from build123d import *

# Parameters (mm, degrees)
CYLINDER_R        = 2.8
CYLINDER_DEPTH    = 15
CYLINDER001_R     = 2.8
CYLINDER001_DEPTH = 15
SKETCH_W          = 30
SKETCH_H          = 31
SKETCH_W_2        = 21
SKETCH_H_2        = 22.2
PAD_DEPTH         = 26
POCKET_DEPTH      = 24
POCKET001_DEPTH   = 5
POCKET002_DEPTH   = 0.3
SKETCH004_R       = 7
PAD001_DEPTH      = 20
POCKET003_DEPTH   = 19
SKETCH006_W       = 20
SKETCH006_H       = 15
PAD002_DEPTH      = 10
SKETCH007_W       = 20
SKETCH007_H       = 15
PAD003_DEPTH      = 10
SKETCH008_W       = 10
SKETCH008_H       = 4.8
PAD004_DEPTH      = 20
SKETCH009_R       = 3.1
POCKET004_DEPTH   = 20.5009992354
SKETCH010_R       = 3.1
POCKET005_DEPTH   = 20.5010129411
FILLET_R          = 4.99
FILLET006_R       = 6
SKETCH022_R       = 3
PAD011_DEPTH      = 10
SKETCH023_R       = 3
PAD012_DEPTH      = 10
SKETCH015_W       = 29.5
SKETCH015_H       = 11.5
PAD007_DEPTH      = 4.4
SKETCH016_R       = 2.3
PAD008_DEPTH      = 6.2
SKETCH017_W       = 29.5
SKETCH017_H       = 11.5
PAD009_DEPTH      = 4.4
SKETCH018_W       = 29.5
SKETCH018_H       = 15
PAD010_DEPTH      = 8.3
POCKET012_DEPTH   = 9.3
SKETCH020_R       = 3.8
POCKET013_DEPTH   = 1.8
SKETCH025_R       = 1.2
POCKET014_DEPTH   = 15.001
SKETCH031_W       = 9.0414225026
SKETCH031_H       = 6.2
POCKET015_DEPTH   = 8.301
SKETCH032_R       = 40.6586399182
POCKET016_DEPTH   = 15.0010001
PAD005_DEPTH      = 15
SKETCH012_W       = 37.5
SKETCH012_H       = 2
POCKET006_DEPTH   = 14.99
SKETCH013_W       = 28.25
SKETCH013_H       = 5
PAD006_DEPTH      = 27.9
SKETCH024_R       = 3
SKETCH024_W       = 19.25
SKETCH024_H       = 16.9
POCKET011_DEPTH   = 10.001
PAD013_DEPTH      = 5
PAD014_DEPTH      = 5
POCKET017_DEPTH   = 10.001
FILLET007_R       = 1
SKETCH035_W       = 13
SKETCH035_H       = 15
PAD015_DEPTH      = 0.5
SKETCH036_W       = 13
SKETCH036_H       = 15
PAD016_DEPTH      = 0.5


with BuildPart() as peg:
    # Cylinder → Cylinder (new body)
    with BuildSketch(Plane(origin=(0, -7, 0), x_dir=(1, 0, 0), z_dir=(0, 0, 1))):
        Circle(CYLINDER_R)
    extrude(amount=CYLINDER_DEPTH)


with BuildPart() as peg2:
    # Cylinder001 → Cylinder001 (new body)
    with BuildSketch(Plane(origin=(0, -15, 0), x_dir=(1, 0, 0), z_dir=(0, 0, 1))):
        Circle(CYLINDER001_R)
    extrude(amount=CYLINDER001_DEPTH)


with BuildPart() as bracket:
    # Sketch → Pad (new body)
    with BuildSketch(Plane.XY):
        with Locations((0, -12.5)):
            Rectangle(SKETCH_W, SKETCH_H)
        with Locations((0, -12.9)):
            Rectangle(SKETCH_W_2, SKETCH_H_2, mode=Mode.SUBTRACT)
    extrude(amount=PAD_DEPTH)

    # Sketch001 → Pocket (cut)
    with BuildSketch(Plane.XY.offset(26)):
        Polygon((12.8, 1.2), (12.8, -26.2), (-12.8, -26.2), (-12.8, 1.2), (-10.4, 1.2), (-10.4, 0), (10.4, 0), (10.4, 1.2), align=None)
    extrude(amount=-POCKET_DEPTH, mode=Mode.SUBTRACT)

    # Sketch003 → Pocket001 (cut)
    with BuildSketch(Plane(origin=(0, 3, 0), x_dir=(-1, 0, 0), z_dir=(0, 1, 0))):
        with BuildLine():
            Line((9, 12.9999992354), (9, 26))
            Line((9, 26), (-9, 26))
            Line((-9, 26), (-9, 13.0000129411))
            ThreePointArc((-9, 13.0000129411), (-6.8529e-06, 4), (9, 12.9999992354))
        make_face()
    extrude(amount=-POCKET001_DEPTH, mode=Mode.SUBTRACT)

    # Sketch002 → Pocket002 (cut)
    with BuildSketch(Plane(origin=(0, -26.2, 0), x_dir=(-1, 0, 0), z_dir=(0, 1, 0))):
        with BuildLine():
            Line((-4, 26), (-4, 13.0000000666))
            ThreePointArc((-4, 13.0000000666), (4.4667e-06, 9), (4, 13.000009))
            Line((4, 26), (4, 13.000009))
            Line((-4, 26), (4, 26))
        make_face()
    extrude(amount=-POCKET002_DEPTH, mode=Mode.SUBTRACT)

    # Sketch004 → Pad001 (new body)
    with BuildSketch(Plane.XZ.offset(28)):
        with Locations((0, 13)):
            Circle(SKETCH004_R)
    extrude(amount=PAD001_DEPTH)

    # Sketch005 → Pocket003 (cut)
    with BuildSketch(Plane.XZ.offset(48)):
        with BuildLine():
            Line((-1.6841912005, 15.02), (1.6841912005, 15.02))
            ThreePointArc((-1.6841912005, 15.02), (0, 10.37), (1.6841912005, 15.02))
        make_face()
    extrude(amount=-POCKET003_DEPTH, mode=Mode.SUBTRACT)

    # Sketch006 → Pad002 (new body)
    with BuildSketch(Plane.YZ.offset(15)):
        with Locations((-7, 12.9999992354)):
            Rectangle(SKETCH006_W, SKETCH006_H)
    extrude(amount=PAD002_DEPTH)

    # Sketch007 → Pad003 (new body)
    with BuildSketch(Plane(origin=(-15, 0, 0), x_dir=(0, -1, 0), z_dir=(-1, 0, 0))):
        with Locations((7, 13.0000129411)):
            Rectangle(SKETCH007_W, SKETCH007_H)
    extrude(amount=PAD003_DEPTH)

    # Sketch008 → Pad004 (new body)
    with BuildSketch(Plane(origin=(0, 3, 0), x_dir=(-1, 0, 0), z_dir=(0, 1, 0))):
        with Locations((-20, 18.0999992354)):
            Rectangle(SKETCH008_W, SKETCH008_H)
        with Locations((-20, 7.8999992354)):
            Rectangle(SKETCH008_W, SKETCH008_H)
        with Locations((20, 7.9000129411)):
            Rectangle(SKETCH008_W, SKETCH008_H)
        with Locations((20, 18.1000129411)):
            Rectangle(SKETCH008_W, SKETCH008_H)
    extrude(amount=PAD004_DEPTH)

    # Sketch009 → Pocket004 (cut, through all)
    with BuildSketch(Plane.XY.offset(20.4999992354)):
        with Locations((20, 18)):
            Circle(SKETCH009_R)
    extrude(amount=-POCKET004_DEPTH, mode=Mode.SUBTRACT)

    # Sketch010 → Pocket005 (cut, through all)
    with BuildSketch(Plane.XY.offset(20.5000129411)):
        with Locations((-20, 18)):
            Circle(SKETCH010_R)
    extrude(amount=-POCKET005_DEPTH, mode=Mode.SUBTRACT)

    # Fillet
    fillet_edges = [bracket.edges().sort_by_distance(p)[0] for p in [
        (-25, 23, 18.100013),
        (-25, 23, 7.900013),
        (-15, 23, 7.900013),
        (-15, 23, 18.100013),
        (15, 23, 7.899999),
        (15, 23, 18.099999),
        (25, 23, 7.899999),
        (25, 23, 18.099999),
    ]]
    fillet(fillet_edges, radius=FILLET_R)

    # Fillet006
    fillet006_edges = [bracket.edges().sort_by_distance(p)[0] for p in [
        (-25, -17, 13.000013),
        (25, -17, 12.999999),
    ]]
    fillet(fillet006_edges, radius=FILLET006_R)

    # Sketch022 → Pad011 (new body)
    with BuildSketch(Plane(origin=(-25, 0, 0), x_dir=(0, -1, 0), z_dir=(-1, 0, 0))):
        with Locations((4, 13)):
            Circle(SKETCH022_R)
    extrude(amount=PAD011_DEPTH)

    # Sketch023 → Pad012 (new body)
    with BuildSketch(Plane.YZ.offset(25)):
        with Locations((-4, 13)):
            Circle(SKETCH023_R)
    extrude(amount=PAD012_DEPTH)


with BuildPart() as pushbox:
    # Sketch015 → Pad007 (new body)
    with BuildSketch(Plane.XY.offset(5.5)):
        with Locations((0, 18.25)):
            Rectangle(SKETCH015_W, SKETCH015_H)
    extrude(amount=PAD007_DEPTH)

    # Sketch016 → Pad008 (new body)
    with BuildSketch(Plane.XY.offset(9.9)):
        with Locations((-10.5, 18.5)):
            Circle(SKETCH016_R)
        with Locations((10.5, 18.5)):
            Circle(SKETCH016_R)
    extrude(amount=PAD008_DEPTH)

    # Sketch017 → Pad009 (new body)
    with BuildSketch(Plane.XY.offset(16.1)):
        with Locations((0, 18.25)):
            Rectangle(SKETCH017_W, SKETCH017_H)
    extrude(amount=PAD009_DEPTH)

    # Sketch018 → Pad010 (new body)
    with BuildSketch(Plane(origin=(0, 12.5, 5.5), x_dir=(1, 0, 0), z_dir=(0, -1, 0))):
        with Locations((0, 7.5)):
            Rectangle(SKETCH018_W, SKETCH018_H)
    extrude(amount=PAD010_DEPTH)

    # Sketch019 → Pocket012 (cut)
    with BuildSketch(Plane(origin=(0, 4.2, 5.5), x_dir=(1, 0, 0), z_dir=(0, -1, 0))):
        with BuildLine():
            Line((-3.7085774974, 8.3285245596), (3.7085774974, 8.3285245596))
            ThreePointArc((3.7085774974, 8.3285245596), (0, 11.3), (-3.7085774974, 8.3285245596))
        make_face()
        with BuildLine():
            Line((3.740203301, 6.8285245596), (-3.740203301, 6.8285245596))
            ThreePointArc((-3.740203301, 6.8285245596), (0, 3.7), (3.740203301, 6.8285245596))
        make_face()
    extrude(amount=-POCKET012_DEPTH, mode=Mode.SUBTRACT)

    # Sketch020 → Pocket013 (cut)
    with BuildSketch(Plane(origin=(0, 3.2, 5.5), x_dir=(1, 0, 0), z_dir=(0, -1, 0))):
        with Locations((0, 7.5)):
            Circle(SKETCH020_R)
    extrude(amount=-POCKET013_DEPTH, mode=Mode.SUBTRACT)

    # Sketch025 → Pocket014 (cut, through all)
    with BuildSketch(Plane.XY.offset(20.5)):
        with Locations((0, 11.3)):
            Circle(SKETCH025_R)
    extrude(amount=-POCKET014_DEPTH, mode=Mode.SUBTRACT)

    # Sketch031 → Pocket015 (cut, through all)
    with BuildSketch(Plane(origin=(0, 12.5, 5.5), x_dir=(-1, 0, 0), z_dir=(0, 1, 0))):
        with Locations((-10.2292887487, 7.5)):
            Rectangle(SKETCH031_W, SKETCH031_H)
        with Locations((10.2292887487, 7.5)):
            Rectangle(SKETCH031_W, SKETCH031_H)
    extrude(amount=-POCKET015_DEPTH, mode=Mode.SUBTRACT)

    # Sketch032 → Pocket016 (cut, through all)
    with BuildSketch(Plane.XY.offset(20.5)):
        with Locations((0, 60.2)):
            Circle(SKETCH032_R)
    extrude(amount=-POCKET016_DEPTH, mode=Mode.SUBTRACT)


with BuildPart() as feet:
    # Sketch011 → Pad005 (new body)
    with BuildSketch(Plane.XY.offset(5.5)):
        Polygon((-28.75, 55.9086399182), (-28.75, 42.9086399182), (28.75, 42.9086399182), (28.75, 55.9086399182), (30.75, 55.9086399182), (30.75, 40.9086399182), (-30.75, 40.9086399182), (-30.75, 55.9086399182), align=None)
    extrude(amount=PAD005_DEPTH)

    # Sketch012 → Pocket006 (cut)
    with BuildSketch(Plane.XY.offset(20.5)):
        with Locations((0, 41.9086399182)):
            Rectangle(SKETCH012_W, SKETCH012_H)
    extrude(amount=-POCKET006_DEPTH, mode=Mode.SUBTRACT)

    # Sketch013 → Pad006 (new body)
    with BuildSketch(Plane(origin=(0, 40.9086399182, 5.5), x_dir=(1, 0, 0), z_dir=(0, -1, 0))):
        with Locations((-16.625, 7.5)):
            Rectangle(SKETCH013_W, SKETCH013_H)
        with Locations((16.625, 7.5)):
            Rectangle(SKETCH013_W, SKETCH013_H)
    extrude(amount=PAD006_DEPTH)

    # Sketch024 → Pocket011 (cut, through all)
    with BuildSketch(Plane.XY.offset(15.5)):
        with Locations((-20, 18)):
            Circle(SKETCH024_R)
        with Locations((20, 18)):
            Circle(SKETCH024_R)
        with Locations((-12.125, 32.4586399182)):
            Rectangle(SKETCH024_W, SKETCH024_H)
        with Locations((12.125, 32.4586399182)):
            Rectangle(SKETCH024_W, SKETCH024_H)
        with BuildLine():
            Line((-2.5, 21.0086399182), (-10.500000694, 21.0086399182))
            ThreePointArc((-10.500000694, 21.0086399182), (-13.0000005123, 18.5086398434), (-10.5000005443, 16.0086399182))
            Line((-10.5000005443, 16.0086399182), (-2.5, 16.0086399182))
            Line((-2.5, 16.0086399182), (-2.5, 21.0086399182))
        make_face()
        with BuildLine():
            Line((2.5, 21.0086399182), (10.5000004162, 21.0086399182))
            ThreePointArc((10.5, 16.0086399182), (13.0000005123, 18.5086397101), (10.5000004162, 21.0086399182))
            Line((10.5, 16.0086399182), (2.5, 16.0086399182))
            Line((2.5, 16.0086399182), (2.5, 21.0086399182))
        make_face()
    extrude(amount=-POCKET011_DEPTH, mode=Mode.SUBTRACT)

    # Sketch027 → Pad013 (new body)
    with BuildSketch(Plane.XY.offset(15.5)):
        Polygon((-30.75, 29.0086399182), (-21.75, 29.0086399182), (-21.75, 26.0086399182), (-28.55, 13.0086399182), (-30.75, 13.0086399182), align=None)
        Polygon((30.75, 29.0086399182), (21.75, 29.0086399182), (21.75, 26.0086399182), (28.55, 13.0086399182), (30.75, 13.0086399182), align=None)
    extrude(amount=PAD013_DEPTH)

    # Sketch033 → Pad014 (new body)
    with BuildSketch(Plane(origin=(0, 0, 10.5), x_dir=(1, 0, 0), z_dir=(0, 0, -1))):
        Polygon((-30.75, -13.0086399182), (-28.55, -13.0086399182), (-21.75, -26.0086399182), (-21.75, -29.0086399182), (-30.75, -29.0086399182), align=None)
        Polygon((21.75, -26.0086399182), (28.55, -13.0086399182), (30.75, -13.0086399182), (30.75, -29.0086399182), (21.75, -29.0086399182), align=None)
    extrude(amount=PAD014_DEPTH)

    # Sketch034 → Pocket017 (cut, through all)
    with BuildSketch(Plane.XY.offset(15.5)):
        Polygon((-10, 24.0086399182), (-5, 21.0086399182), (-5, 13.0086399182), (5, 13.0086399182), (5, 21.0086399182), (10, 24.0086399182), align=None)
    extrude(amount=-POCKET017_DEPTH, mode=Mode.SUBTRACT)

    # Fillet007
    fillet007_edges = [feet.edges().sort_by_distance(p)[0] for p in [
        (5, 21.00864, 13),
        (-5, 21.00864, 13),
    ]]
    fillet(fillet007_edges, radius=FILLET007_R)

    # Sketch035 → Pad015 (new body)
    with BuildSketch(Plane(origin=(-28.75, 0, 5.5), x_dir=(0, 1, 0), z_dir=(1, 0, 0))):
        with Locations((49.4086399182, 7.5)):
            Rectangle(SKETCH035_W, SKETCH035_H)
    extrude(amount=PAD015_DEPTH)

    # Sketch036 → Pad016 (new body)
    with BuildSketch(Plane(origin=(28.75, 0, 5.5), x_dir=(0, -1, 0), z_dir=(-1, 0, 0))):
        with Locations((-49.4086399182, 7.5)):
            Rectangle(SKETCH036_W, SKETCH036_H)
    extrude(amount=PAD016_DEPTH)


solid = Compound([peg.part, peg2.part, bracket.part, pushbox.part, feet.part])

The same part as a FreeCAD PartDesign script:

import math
import FreeCAD as App
import Part
import Sketcher

V = App.Vector
Q = App.Units.Quantity


def edges_at(feature, points):
    """Names of the edges that pass closest to the given points."""
    edges = feature.Shape.Edges
    near = lambda p: min(range(len(edges)), key=lambda i: edges[i].distToShape(Part.Vertex(*p))[0])
    return sorted({f"Edge{near(p) + 1}" for p in points})


def add_polygon(sketch, points):
    """Adds a closed chain of lines whose ends are joined by coincident constraints."""
    first, n = sketch.GeometryCount, len(points)
    for a, b in zip(points, points[1:] + points[:1]):
        sketch.addGeometry(Part.LineSegment(App.Vector(*a, 0), App.Vector(*b, 0)), False)
    for i in range(n):
        sketch.addConstraint(Sketcher.Constraint("Coincident", first + i, 2, first + (i + 1) % n, 1))

doc = App.newDocument("Part")
body = doc.addObject("PartDesign::Body", "Body")

sketch1 = body.newObject("Sketcher::SketchObject", "Sketch")
sketch1.AttachmentSupport = (doc.getObject("XY_Plane"), [""])
sketch1.MapMode = "FlatFace"
sketch1.addGeometry(Part.Circle(V(0, -7, 0), V(0, 0, 1), 2.8), False)
sketch1.addConstraint(Sketcher.Constraint("PointOnObject", 0, 3, -2))
sketch1.addConstraint(Sketcher.Constraint("Diameter", 0, Q("5.6 mm")))
sketch1.addConstraint(Sketcher.Constraint("DistanceY", 0, 3, -1, 1, Q("7 mm")))
pad1 = body.newObject("PartDesign::Pad", "Pad")
pad1.Profile = sketch1
pad1.Length = 15
body2 = doc.addObject("PartDesign::Body", "Body001")

sketch2 = body2.newObject("Sketcher::SketchObject", "Sketch001")
sketch2.AttachmentSupport = (doc.getObject("XY_Plane001"), [""])
sketch2.MapMode = "FlatFace"
sketch2.addGeometry(Part.Circle(V(0, -15, 0), V(0, 0, 1), 2.8), False)
sketch2.addConstraint(Sketcher.Constraint("PointOnObject", 0, 3, -2))
sketch2.addConstraint(Sketcher.Constraint("Diameter", 0, Q("5.6 mm")))
sketch2.addConstraint(Sketcher.Constraint("DistanceY", 0, 3, -1, 1, Q("15 mm")))
pad2 = body2.newObject("PartDesign::Pad", "Pad001")
pad2.Profile = sketch2
pad2.Length = 15
body3 = doc.addObject("PartDesign::Body", "Body002")

sketch3 = body3.newObject("Sketcher::SketchObject", "Sketch002")
sketch3.AttachmentSupport = (doc.getObject("XY_Plane002"), [""])
sketch3.MapMode = "FlatFace"
add_polygon(sketch3, [(-15, 3), (-15, -28), (15, -28), (15, 3)])
add_polygon(sketch3, [(10, -24), (-10, -24), (-10, -2), (10, -2)])
sketch3.addConstraint(Sketcher.Constraint("Vertical", 0))
sketch3.addConstraint(Sketcher.Constraint("Horizontal", 1))
sketch3.addConstraint(Sketcher.Constraint("Vertical", 2))
sketch3.addConstraint(Sketcher.Constraint("Horizontal", 3))
sketch3.addConstraint(Sketcher.Constraint("Horizontal", 4))
sketch3.addConstraint(Sketcher.Constraint("Vertical", 5))
sketch3.addConstraint(Sketcher.Constraint("Horizontal", 6))
sketch3.addConstraint(Sketcher.Constraint("Vertical", 7))
sketch3.addConstraint(Sketcher.Constraint("DistanceX", 1, 1, 1, 2, Q("30 mm")))
sketch3.addConstraint(Sketcher.Constraint("DistanceX", 4, 2, 4, 1, Q("21 mm")))
sketch3.addConstraint(Sketcher.Constraint("DistanceY", 0, 2, 0, 1, Q("31 mm")))
sketch3.addConstraint(Sketcher.Constraint("DistanceY", 5, 1, 5, 2, Q("22.2 mm")))
sketch3.addConstraint(Sketcher.Constraint("DistanceX", 0, 2, -1, 1, Q("15 mm")))
sketch3.addConstraint(Sketcher.Constraint("DistanceY", 0, 2, -1, 1, Q("28 mm")))
sketch3.addConstraint(Sketcher.Constraint("DistanceY", 4, 2, -1, 1, Q("24 mm")))
sketch3.addConstraint(Sketcher.Constraint("DistanceX", 4, 2, -1, 1, Q("10.5 mm")))
pad3 = body3.newObject("PartDesign::Pad", "Pad002")
pad3.Profile = sketch3
pad3.Length = 26

sketch4 = body3.newObject("Sketcher::SketchObject", "Sketch003")
sketch4.AttachmentSupport = (doc.getObject("XY_Plane002"), [""])
sketch4.MapMode = "FlatFace"
sketch4.AttachmentOffset = App.Placement(V(0, 0, 26), App.Rotation())
add_polygon(sketch4, [(12.8, -26.2), (12.8, 1.2), (10.4, 1.2), (10.4, 0), (-10.4, 0), (-10.4, 1.2), (-12.8, 1.2), (-12.8, -26.2)])
sketch4.addConstraint(Sketcher.Constraint("Vertical", 0))
sketch4.addConstraint(Sketcher.Constraint("Horizontal", 1))
sketch4.addConstraint(Sketcher.Constraint("Vertical", 2))
sketch4.addConstraint(Sketcher.Constraint("Horizontal", 3))
sketch4.addConstraint(Sketcher.Constraint("Vertical", 4))
sketch4.addConstraint(Sketcher.Constraint("Horizontal", 5))
sketch4.addConstraint(Sketcher.Constraint("Vertical", 6))
sketch4.addConstraint(Sketcher.Constraint("Horizontal", 7))
sketch4.addConstraint(Sketcher.Constraint("Symmetric", 2, 2, 3, 2, -1, 1))
sketch4.addConstraint(Sketcher.Constraint("Symmetric", 0, 2, 5, 2, -2))
sketch4.addConstraint(Sketcher.Constraint("DistanceX", 1, 2, 1, 1, Q("2.4 mm")))
sketch4.addConstraint(Sketcher.Constraint("DistanceX", 3, 2, 3, 1, Q("20.8 mm")))
sketch4.addConstraint(Sketcher.Constraint("DistanceY", 0, 1, 0, 2, Q("27.4 mm")))
sketch4.addConstraint(Sketcher.Constraint("DistanceY", 2, 2, 2, 1, Q("1.2 mm")))
pocket1 = body3.newObject("PartDesign::Pocket", "Pocket")
pocket1.Profile = sketch4
pocket1.Length = 24

sketch5 = body3.newObject("Sketcher::SketchObject", "Sketch004")
sketch5.AttachmentSupport = (doc.getObject("XZ_Plane002"), [""])
sketch5.MapMode = "FlatFace"
sketch5.AttachmentOffset = App.Placement(V(0, 0, -3), App.Rotation())
sketch5.addGeometry(Part.LineSegment(V(-9, 13, 0), V(-9, 26, 0)), False)
sketch5.addGeometry(Part.LineSegment(V(-9, 26, 0), V(9, 26, 0)), False)
sketch5.addGeometry(Part.LineSegment(V(9, 26, 0), V(9, 13, 0)), False)
sketch5.addGeometry(Part.ArcOfCircle(Part.Circle(V(0, 13, 0), V(0, 0, 1), 9), math.radians(-180), math.radians(0)), False)
sketch5.addConstraint(Sketcher.Constraint("Coincident", 0, 2, 1, 1))
sketch5.addConstraint(Sketcher.Constraint("Coincident", 1, 2, 2, 1))
sketch5.addConstraint(Sketcher.Constraint("Tangent", 2, 2, 3, 2))
sketch5.addConstraint(Sketcher.Constraint("Tangent", 3, 1, 0, 1))
sketch5.addConstraint(Sketcher.Constraint("Vertical", 0))
sketch5.addConstraint(Sketcher.Constraint("Horizontal", 1))
sketch5.addConstraint(Sketcher.Constraint("Vertical", 2))
sketch5.addConstraint(Sketcher.Constraint("PointOnObject", 3, 3, -2))
sketch5.addConstraint(Sketcher.Constraint("Radius", 3, Q("9 mm")))
sketch5.addConstraint(Sketcher.Constraint("DistanceY", 0, 1, 0, 2, Q("13.000001 mm")))
sketch5.addConstraint(Sketcher.Constraint("DistanceY", -1, 1, 3, 3, Q("13 mm")))
pocket2 = body3.newObject("PartDesign::Pocket", "Pocket001")
pocket2.Profile = sketch5
pocket2.Length = 5
pocket2.Reversed = True

sketch6 = body3.newObject("Sketcher::SketchObject", "Sketch005")
sketch6.AttachmentSupport = (doc.getObject("XZ_Plane002"), [""])
sketch6.MapMode = "FlatFace"
sketch6.AttachmentOffset = App.Placement(V(0, 0, 26.2), App.Rotation())
sketch6.addGeometry(Part.LineSegment(V(4, 26, 0), V(4, 13, 0)), False)
sketch6.addGeometry(Part.ArcOfCircle(Part.Circle(V(0, 13, 0), V(0, 0, 1), 4), math.radians(180), math.radians(360)), False)
sketch6.addGeometry(Part.LineSegment(V(-4, 13, 0), V(-4, 26, 0)), False)
sketch6.addGeometry(Part.LineSegment(V(-4, 26, 0), V(4, 26, 0)), False)
sketch6.addConstraint(Sketcher.Constraint("Tangent", 0, 2, 1, 2))
sketch6.addConstraint(Sketcher.Constraint("Coincident", 1, 1, 2, 1))
sketch6.addConstraint(Sketcher.Constraint("Coincident", 2, 2, 3, 1))
sketch6.addConstraint(Sketcher.Constraint("Coincident", 3, 2, 0, 1))
sketch6.addConstraint(Sketcher.Constraint("Vertical", 0))
sketch6.addConstraint(Sketcher.Constraint("Vertical", 2))
sketch6.addConstraint(Sketcher.Constraint("Horizontal", 3))
sketch6.addConstraint(Sketcher.Constraint("Symmetric", 0, 2, 1, 1, -2))
sketch6.addConstraint(Sketcher.Constraint("Radius", 1, Q("4 mm")))
sketch6.addConstraint(Sketcher.Constraint("DistanceY", 0, 2, 0, 1, Q("13 mm")))
sketch6.addConstraint(Sketcher.Constraint("DistanceY", -1, 1, 1, 3, Q("13 mm")))
pocket3 = body3.newObject("PartDesign::Pocket", "Pocket002")
pocket3.Profile = sketch6
pocket3.Length = 0.3
pocket3.Reversed = True

sketch7 = body3.newObject("Sketcher::SketchObject", "Sketch006")
sketch7.AttachmentSupport = (doc.getObject("XZ_Plane002"), [""])
sketch7.MapMode = "FlatFace"
sketch7.AttachmentOffset = App.Placement(V(0, 0, 28), App.Rotation())
sketch7.addGeometry(Part.Circle(V(0, 13, 0), V(0, 0, 1), 7), False)
sketch7.addConstraint(Sketcher.Constraint("PointOnObject", 0, 3, -2))
sketch7.addConstraint(Sketcher.Constraint("Diameter", 0, Q("14 mm")))
sketch7.addConstraint(Sketcher.Constraint("DistanceY", -1, 1, 0, 3, Q("13 mm")))
pad4 = body3.newObject("PartDesign::Pad", "Pad003")
pad4.Profile = sketch7
pad4.Length = 20

sketch8 = body3.newObject("Sketcher::SketchObject", "Sketch007")
sketch8.AttachmentSupport = (doc.getObject("XZ_Plane002"), [""])
sketch8.MapMode = "FlatFace"
sketch8.AttachmentOffset = App.Placement(V(0, 0, 48), App.Rotation())
sketch8.addGeometry(Part.LineSegment(V(1.7, 15, 0), V(-1.7, 15, 0)), False)
sketch8.addGeometry(Part.ArcOfCircle(Part.Circle(V(0, 13, 0), V(0, 0, 1), 2.6), math.radians(130), math.radians(410)), False)
sketch8.addConstraint(Sketcher.Constraint("Coincident", 0, 1, 1, 2))
sketch8.addConstraint(Sketcher.Constraint("Coincident", 1, 1, 0, 2))
sketch8.addConstraint(Sketcher.Constraint("Horizontal", 0))
sketch8.addConstraint(Sketcher.Constraint("PointOnObject", 1, 3, -2))
sketch8.addConstraint(Sketcher.Constraint("Radius", 1, Q("2.63 mm")))
sketch8.addConstraint(Sketcher.Constraint("DistanceY", -1, 1, 1, 3, Q("13 mm")))
sketch8.addConstraint(Sketcher.Constraint("DistanceY", -1, 1, 0, 1, Q("15.02 mm")))
pocket4 = body3.newObject("PartDesign::Pocket", "Pocket003")
pocket4.Profile = sketch8
pocket4.Length = 19

sketch9 = body3.newObject("Sketcher::SketchObject", "Sketch008")
sketch9.AttachmentSupport = (doc.getObject("YZ_Plane002"), [""])
sketch9.MapMode = "FlatFace"
sketch9.AttachmentOffset = App.Placement(V(0, 0, 15), App.Rotation())
add_polygon(sketch9, [(-17, 20), (-17, 5), (3, 5), (3, 20)])
sketch9.addConstraint(Sketcher.Constraint("Vertical", 0))
sketch9.addConstraint(Sketcher.Constraint("Horizontal", 1))
sketch9.addConstraint(Sketcher.Constraint("Vertical", 2))
sketch9.addConstraint(Sketcher.Constraint("Horizontal", 3))
sketch9.addConstraint(Sketcher.Constraint("DistanceX", 1, 1, 1, 2, Q("20 mm")))
sketch9.addConstraint(Sketcher.Constraint("DistanceY", 0, 2, 0, 1, Q("15 mm")))
sketch9.addConstraint(Sketcher.Constraint("DistanceX", 0, 2, -1, 1, Q("17 mm")))
sketch9.addConstraint(Sketcher.Constraint("DistanceY", -1, 1, 0, 2, Q("5.499999 mm")))
pad5 = body3.newObject("PartDesign::Pad", "Pad004")
pad5.Profile = sketch9
pad5.Length = 10

sketch10 = body3.newObject("Sketcher::SketchObject", "Sketch009")
sketch10.AttachmentSupport = (doc.getObject("YZ_Plane002"), [""])
sketch10.MapMode = "FlatFace"
sketch10.AttachmentOffset = App.Placement(V(0, 0, -15), App.Rotation())
add_polygon(sketch10, [(3, 21), (3, 6), (-17, 6), (-17, 21)])
sketch10.addConstraint(Sketcher.Constraint("Vertical", 0))
sketch10.addConstraint(Sketcher.Constraint("Horizontal", 1))
sketch10.addConstraint(Sketcher.Constraint("Vertical", 2))
sketch10.addConstraint(Sketcher.Constraint("Horizontal", 3))
sketch10.addConstraint(Sketcher.Constraint("DistanceX", 1, 2, 1, 1, Q("20 mm")))
sketch10.addConstraint(Sketcher.Constraint("DistanceY", 0, 2, 0, 1, Q("15 mm")))
sketch10.addConstraint(Sketcher.Constraint("DistanceX", -1, 1, 0, 2, Q("3 mm")))
sketch10.addConstraint(Sketcher.Constraint("DistanceY", -1, 1, 0, 2, Q("5.500013 mm")))
pad6 = body3.newObject("PartDesign::Pad", "Pad005")
pad6.Profile = sketch10
pad6.Length = 10
pad6.Reversed = True

sketch11 = body3.newObject("Sketcher::SketchObject", "Sketch010")
sketch11.AttachmentSupport = (doc.getObject("XZ_Plane002"), [""])
sketch11.MapMode = "FlatFace"
sketch11.AttachmentOffset = App.Placement(V(0, 0, -3), App.Rotation())
add_polygon(sketch11, [(25, 20.5), (25, 15.7), (15, 15.7), (15, 20.5)])
add_polygon(sketch11, [(25, 10.3), (25, 5.5), (15, 5.5), (15, 10.3)])
add_polygon(sketch11, [(-15, 10.3), (-15, 5.5), (-25, 5.5), (-25, 10.3)])
add_polygon(sketch11, [(-15, 20.5), (-15, 15.7), (-25, 15.7), (-25, 20.5)])
sketch11.addConstraint(Sketcher.Constraint("Vertical", 0))
sketch11.addConstraint(Sketcher.Constraint("Horizontal", 1))
sketch11.addConstraint(Sketcher.Constraint("Vertical", 2))
sketch11.addConstraint(Sketcher.Constraint("Horizontal", 3))
sketch11.addConstraint(Sketcher.Constraint("Vertical", 4))
sketch11.addConstraint(Sketcher.Constraint("Horizontal", 5))
sketch11.addConstraint(Sketcher.Constraint("Vertical", 6))
sketch11.addConstraint(Sketcher.Constraint("Horizontal", 7))
sketch11.addConstraint(Sketcher.Constraint("Vertical", 8))
sketch11.addConstraint(Sketcher.Constraint("Horizontal", 9))
sketch11.addConstraint(Sketcher.Constraint("Vertical", 10))
sketch11.addConstraint(Sketcher.Constraint("Horizontal", 11))
sketch11.addConstraint(Sketcher.Constraint("Vertical", 12))
sketch11.addConstraint(Sketcher.Constraint("Horizontal", 13))
sketch11.addConstraint(Sketcher.Constraint("Vertical", 14))
sketch11.addConstraint(Sketcher.Constraint("Horizontal", 15))
sketch11.addConstraint(Sketcher.Constraint("Vertical", 3, 2, 4, 2))
sketch11.addConstraint(Sketcher.Constraint("Vertical", 2, 2, 5, 2))
sketch11.addConstraint(Sketcher.Constraint("Vertical", 11, 2, 12, 2))
sketch11.addConstraint(Sketcher.Constraint("Vertical", 10, 2, 13, 2))
sketch11.addConstraint(Sketcher.Constraint("Equal", 7, 9))
sketch11.addConstraint(Sketcher.Constraint("Equal", 2, 4))
sketch11.addConstraint(Sketcher.Constraint("Equal", 6, 8))
sketch11.addConstraint(Sketcher.Constraint("Equal", 10, 12))
sketch11.addConstraint(Sketcher.Constraint("DistanceX", 1, 2, 1, 1, Q("10 mm")))
sketch11.addConstraint(Sketcher.Constraint("DistanceY", 0, 2, 0, 1, Q("4.8 mm")))
sketch11.addConstraint(Sketcher.Constraint("DistanceX", -1, 1, 0, 2, Q("25 mm")))
sketch11.addConstraint(Sketcher.Constraint("DistanceX", 8, 2, -1, 1, Q("15 mm")))
sketch11.addConstraint(Sketcher.Constraint("DistanceY", 4, 2, 3, 2, Q("15 mm")))
sketch11.addConstraint(Sketcher.Constraint("DistanceY", 9, 2, 14, 2, Q("15 mm")))
sketch11.addConstraint(Sketcher.Constraint("DistanceY", -1, 1, 0, 2, Q("15.699999 mm")))
sketch11.addConstraint(Sketcher.Constraint("DistanceY", -1, 1, 8, 2, Q("5.500013 mm")))
pad7 = body3.newObject("PartDesign::Pad", "Pad006")
pad7.Profile = sketch11
pad7.Length = 20
pad7.Reversed = True

sketch12 = body3.newObject("Sketcher::SketchObject", "Sketch011")
sketch12.AttachmentSupport = (doc.getObject("XY_Plane002"), [""])
sketch12.MapMode = "FlatFace"
sketch12.AttachmentOffset = App.Placement(V(0, 0, 20.499999), App.Rotation())
sketch12.addGeometry(Part.Circle(V(20, 18, 0), V(0, 0, 1), 3.1), False)
sketch12.addConstraint(Sketcher.Constraint("Diameter", 0, Q("6.2 mm")))
sketch12.addConstraint(Sketcher.Constraint("DistanceX", -1, 1, 0, 3, Q("20 mm")))
sketch12.addConstraint(Sketcher.Constraint("DistanceY", -1, 1, 0, 3, Q("18 mm")))
pocket5 = body3.newObject("PartDesign::Pocket", "Pocket004")
pocket5.Profile = sketch12
pocket5.Type = "ThroughAll"

sketch13 = body3.newObject("Sketcher::SketchObject", "Sketch012")
sketch13.AttachmentSupport = (doc.getObject("XY_Plane002"), [""])
sketch13.MapMode = "FlatFace"
sketch13.AttachmentOffset = App.Placement(V(0, 0, 20.500013), App.Rotation())
sketch13.addGeometry(Part.Circle(V(-20, 18, 0), V(0, 0, 1), 3.1), False)
sketch13.addConstraint(Sketcher.Constraint("Diameter", 0, Q("6.2 mm")))
sketch13.addConstraint(Sketcher.Constraint("DistanceX", 0, 3, -1, 1, Q("20 mm")))
sketch13.addConstraint(Sketcher.Constraint("DistanceY", -1, 1, 0, 3, Q("18 mm")))
pocket6 = body3.newObject("PartDesign::Pocket", "Pocket005")
pocket6.Profile = sketch13
pocket6.Type = "ThroughAll"
doc.recompute()

fillet = body3.newObject("PartDesign::Fillet", "Fillet")
fillet.Base = (pocket6, edges_at(pocket6, [
    (-25, 23, 18.1),
    (-25, 23, 7.9),
    (-15, 23, 7.9),
    (-15, 23, 18.1),
    (15, 23, 7.9),
    (15, 23, 18.1),
    (25, 23, 7.9),
    (25, 23, 18.1),
]))
fillet.Radius = 4.99
doc.recompute()

fillet2 = body3.newObject("PartDesign::Fillet", "Fillet001")
fillet2.Base = (fillet, edges_at(fillet, [(-25, -17, 13), (25, -17, 13)]))
fillet2.Radius = 6

sketch14 = body3.newObject("Sketcher::SketchObject", "Sketch013")
sketch14.AttachmentSupport = (doc.getObject("YZ_Plane002"), [""])
sketch14.MapMode = "FlatFace"
sketch14.AttachmentOffset = App.Placement(V(0, 0, -25), App.Rotation())
sketch14.addGeometry(Part.Circle(V(-4, 13, 0), V(0, 0, 1), 3), False)
sketch14.addConstraint(Sketcher.Constraint("Diameter", 0, Q("6 mm")))
sketch14.addConstraint(Sketcher.Constraint("DistanceX", 0, 3, -1, 1, Q("4 mm")))
sketch14.addConstraint(Sketcher.Constraint("DistanceY", -1, 1, 0, 3, Q("13 mm")))
pad8 = body3.newObject("PartDesign::Pad", "Pad007")
pad8.Profile = sketch14
pad8.Length = 10
pad8.Reversed = True

sketch15 = body3.newObject("Sketcher::SketchObject", "Sketch014")
sketch15.AttachmentSupport = (doc.getObject("YZ_Plane002"), [""])
sketch15.MapMode = "FlatFace"
sketch15.AttachmentOffset = App.Placement(V(0, 0, 25), App.Rotation())
sketch15.addGeometry(Part.Circle(V(-4, 13, 0), V(0, 0, 1), 3), False)
sketch15.addConstraint(Sketcher.Constraint("Diameter", 0, Q("6 mm")))
sketch15.addConstraint(Sketcher.Constraint("DistanceX", 0, 3, -1, 1, Q("4 mm")))
sketch15.addConstraint(Sketcher.Constraint("DistanceY", -1, 1, 0, 3, Q("13 mm")))
pad9 = body3.newObject("PartDesign::Pad", "Pad008")
pad9.Profile = sketch15
pad9.Length = 10
body4 = doc.addObject("PartDesign::Body", "Body003")

sketch16 = body4.newObject("Sketcher::SketchObject", "Sketch015")
sketch16.AttachmentSupport = (doc.getObject("XY_Plane003"), [""])
sketch16.MapMode = "FlatFace"
sketch16.AttachmentOffset = App.Placement(V(0, 0, 5.5), App.Rotation())
add_polygon(sketch16, [(-15, 24), (-15, 12), (15, 12), (15, 24)])
sketch16.addConstraint(Sketcher.Constraint("Vertical", 0))
sketch16.addConstraint(Sketcher.Constraint("Horizontal", 1))
sketch16.addConstraint(Sketcher.Constraint("Vertical", 2))
sketch16.addConstraint(Sketcher.Constraint("Horizontal", 3))
sketch16.addConstraint(Sketcher.Constraint("DistanceX", 1, 1, 1, 2, Q("29.5 mm")))
sketch16.addConstraint(Sketcher.Constraint("DistanceY", 0, 2, 0, 1, Q("11.5 mm")))
sketch16.addConstraint(Sketcher.Constraint("DistanceY", -1, 1, 2, 2, Q("24 mm")))
sketch16.addConstraint(Sketcher.Constraint("DistanceX", 0, 2, -1, 1, Q("14.75 mm")))
pad10 = body4.newObject("PartDesign::Pad", "Pad009")
pad10.Profile = sketch16
pad10.Length = 4.4

sketch17 = body4.newObject("Sketcher::SketchObject", "Sketch016")
sketch17.AttachmentSupport = (doc.getObject("XY_Plane003"), [""])
sketch17.MapMode = "FlatFace"
sketch17.AttachmentOffset = App.Placement(V(0, 0, 9.9), App.Rotation())
sketch17.addGeometry(Part.Circle(V(-10.5, 18.5, 0), V(0, 0, 1), 2.3), False)
sketch17.addGeometry(Part.Circle(V(10.5, 18.5, 0), V(0, 0, 1), 2.3), False)
sketch17.addConstraint(Sketcher.Constraint("Equal", 0, 1))
sketch17.addConstraint(Sketcher.Constraint("Symmetric", 0, 3, 1, 3, -2))
sketch17.addConstraint(Sketcher.Constraint("Diameter", 0, Q("4.6 mm")))
sketch17.addConstraint(Sketcher.Constraint("DistanceX", 0, 3, 1, 3, Q("21 mm")))
sketch17.addConstraint(Sketcher.Constraint("DistanceY", -1, 1, 0, 3, Q("18.5 mm")))
pad11 = body4.newObject("PartDesign::Pad", "Pad010")
pad11.Profile = sketch17
pad11.Length = 6.2

sketch18 = body4.newObject("Sketcher::SketchObject", "Sketch017")
sketch18.AttachmentSupport = (doc.getObject("XY_Plane003"), [""])
sketch18.MapMode = "FlatFace"
sketch18.AttachmentOffset = App.Placement(V(0, 0, 16.1), App.Rotation())
add_polygon(sketch18, [(-15, 24), (-15, 12), (15, 12), (15, 24)])
sketch18.addConstraint(Sketcher.Constraint("Vertical", 0))
sketch18.addConstraint(Sketcher.Constraint("Horizontal", 1))
sketch18.addConstraint(Sketcher.Constraint("Vertical", 2))
sketch18.addConstraint(Sketcher.Constraint("Horizontal", 3))
sketch18.addConstraint(Sketcher.Constraint("DistanceX", 1, 1, 1, 2, Q("29.5 mm")))
sketch18.addConstraint(Sketcher.Constraint("DistanceY", 0, 2, 0, 1, Q("11.5 mm")))
sketch18.addConstraint(Sketcher.Constraint("DistanceY", -1, 1, 2, 2, Q("24 mm")))
sketch18.addConstraint(Sketcher.Constraint("DistanceX", 0, 2, -1, 1, Q("14.75 mm")))
pad12 = body4.newObject("PartDesign::Pad", "Pad011")
pad12.Profile = sketch18
pad12.Length = 4.4

sketch19 = body4.newObject("Sketcher::SketchObject", "Sketch018")
sketch19.AttachmentSupport = (doc.getObject("XZ_Plane003"), [""])
sketch19.MapMode = "FlatFace"
sketch19.AttachmentOffset = App.Placement(V(0, 0, -12.5), App.Rotation())
add_polygon(sketch19, [(-15, 20), (-15, 6), (15, 6), (15, 20)])
sketch19.addConstraint(Sketcher.Constraint("Vertical", 0))
sketch19.addConstraint(Sketcher.Constraint("Horizontal", 1))
sketch19.addConstraint(Sketcher.Constraint("Vertical", 2))
sketch19.addConstraint(Sketcher.Constraint("Horizontal", 3))
sketch19.addConstraint(Sketcher.Constraint("DistanceY", 0, 2, 0, 1, Q("15 mm")))
sketch19.addConstraint(Sketcher.Constraint("DistanceX", 1, 1, 1, 2, Q("29.5 mm")))
sketch19.addConstraint(Sketcher.Constraint("DistanceY", -1, 1, 0, 2, Q("5.5 mm")))
sketch19.addConstraint(Sketcher.Constraint("DistanceX", 0, 2, -1, 1, Q("14.75 mm")))
pad13 = body4.newObject("PartDesign::Pad", "Pad012")
pad13.Profile = sketch19
pad13.Length = 8.3

sketch20 = body4.newObject("Sketcher::SketchObject", "Sketch019")
sketch20.AttachmentSupport = (doc.getObject("XZ_Plane003"), [""])
sketch20.MapMode = "FlatFace"
sketch20.AttachmentOffset = App.Placement(V(0, 0, -4.2), App.Rotation())
sketch20.addGeometry(Part.LineSegment(V(-3.7, 13.8, 0), V(3.7, 13.8, 0)), False)
sketch20.addGeometry(Part.ArcOfCircle(Part.Circle(V(0, 13, 0), V(0, 0, 1), 3.8), math.radians(13), math.radians(167)), False)
sketch20.addGeometry(Part.LineSegment(V(3.7, 12.3, 0), V(-3.7, 12.3, 0)), False)
sketch20.addGeometry(Part.ArcOfCircle(Part.Circle(V(0, 13, 0), V(0, 0, 1), 3.8), math.radians(-170), math.radians(-10)), False)
sketch20.addConstraint(Sketcher.Constraint("Coincident", 0, 1, 1, 2))
sketch20.addConstraint(Sketcher.Constraint("Coincident", 1, 1, 0, 2))
sketch20.addConstraint(Sketcher.Constraint("Coincident", 2, 1, 3, 2))
sketch20.addConstraint(Sketcher.Constraint("Coincident", 3, 1, 2, 2))
sketch20.addConstraint(Sketcher.Constraint("Horizontal", 0))
sketch20.addConstraint(Sketcher.Constraint("Horizontal", 2))
sketch20.addConstraint(Sketcher.Constraint("Coincident", 3, 3, 1, 3))
sketch20.addConstraint(Sketcher.Constraint("Equal", 1, 3))
sketch20.addConstraint(Sketcher.Constraint("PointOnObject", 1, 3, -2))
sketch20.addConstraint(Sketcher.Constraint("Radius", 1, Q("3.8 mm")))
sketch20.addConstraint(Sketcher.Constraint("DistanceY", -1, 1, 1, 3, Q("13 mm")))
sketch20.addConstraint(Sketcher.Constraint("DistanceY", 2, 1, 1, 1, Q("1.5 mm")))
sketch20.addConstraint(Sketcher.Constraint("DistanceX", 0, 1, 0, 2, Q("7.417155 mm")))
pocket7 = body4.newObject("PartDesign::Pocket", "Pocket006")
pocket7.Profile = sketch20
pocket7.Length = 9.3

sketch21 = body4.newObject("Sketcher::SketchObject", "Sketch020")
sketch21.AttachmentSupport = (doc.getObject("XZ_Plane003"), [""])
sketch21.MapMode = "FlatFace"
sketch21.AttachmentOffset = App.Placement(V(0, 0, -3.2), App.Rotation())
sketch21.addGeometry(Part.Circle(V(0, 13, 0), V(0, 0, 1), 3.8), False)
sketch21.addConstraint(Sketcher.Constraint("PointOnObject", 0, 3, -2))
sketch21.addConstraint(Sketcher.Constraint("Diameter", 0, Q("7.6 mm")))
sketch21.addConstraint(Sketcher.Constraint("DistanceY", -1, 1, 0, 3, Q("13 mm")))
pocket8 = body4.newObject("PartDesign::Pocket", "Pocket007")
pocket8.Profile = sketch21
pocket8.Length = 1.8

sketch22 = body4.newObject("Sketcher::SketchObject", "Sketch021")
sketch22.AttachmentSupport = (doc.getObject("XY_Plane003"), [""])
sketch22.MapMode = "FlatFace"
sketch22.AttachmentOffset = App.Placement(V(0, 0, 20.5), App.Rotation())
sketch22.addGeometry(Part.Circle(V(0, 11.3, 0), V(0, 0, 1), 1.2), False)
sketch22.addConstraint(Sketcher.Constraint("PointOnObject", 0, 3, -2))
sketch22.addConstraint(Sketcher.Constraint("Diameter", 0, Q("2.4 mm")))
sketch22.addConstraint(Sketcher.Constraint("DistanceY", -1, 1, 0, 3, Q("11.3 mm")))
pocket9 = body4.newObject("PartDesign::Pocket", "Pocket008")
pocket9.Profile = sketch22
pocket9.Type = "ThroughAll"

sketch23 = body4.newObject("Sketcher::SketchObject", "Sketch022")
sketch23.AttachmentSupport = (doc.getObject("XZ_Plane003"), [""])
sketch23.MapMode = "FlatFace"
sketch23.AttachmentOffset = App.Placement(V(0, 0, -12.5), App.Rotation())
add_polygon(sketch23, [(15, 16), (15, 10), (6, 10), (6, 16)])
add_polygon(sketch23, [(-6, 16), (-6, 10), (-15, 10), (-15, 16)])
sketch23.addConstraint(Sketcher.Constraint("Vertical", 0))
sketch23.addConstraint(Sketcher.Constraint("Horizontal", 1))
sketch23.addConstraint(Sketcher.Constraint("Vertical", 2))
sketch23.addConstraint(Sketcher.Constraint("Horizontal", 3))
sketch23.addConstraint(Sketcher.Constraint("Vertical", 4))
sketch23.addConstraint(Sketcher.Constraint("Horizontal", 5))
sketch23.addConstraint(Sketcher.Constraint("Vertical", 6))
sketch23.addConstraint(Sketcher.Constraint("Horizontal", 7))
sketch23.addConstraint(Sketcher.Constraint("Symmetric", 1, 2, 4, 2, -2))
sketch23.addConstraint(Sketcher.Constraint("Symmetric", 3, 2, 6, 2, -2))
sketch23.addConstraint(Sketcher.Constraint("DistanceY", 0, 2, 0, 1, Q("6.2 mm")))
sketch23.addConstraint(Sketcher.Constraint("DistanceY", -1, 1, 0, 2, Q("9.9 mm")))
sketch23.addConstraint(Sketcher.Constraint("DistanceX", 5, 2, 0, 2, Q("29.5 mm")))
sketch23.addConstraint(Sketcher.Constraint("DistanceX", 1, 2, 1, 1, Q("9.041423 mm")))
pocket10 = body4.newObject("PartDesign::Pocket", "Pocket009")
pocket10.Profile = sketch23
pocket10.Type = "ThroughAll"
pocket10.Reversed = True

sketch24 = body4.newObject("Sketcher::SketchObject", "Sketch023")
sketch24.AttachmentSupport = (doc.getObject("XY_Plane003"), [""])
sketch24.MapMode = "FlatFace"
sketch24.AttachmentOffset = App.Placement(V(0, 0, 20.5), App.Rotation())
sketch24.addGeometry(Part.Circle(V(0, 60, 0), V(0, 0, 1), 41), False)
sketch24.addConstraint(Sketcher.Constraint("PointOnObject", 0, 3, -2))
sketch24.addConstraint(Sketcher.Constraint("DistanceY", -1, 1, 0, 3, Q("60.2 mm")))
sketch24.addConstraint(Sketcher.Constraint("Diameter", 0, Q("81.31728 mm")))
pocket11 = body4.newObject("PartDesign::Pocket", "Pocket010")
pocket11.Profile = sketch24
pocket11.Type = "ThroughAll"
body5 = doc.addObject("PartDesign::Body", "Body004")

sketch25 = body5.newObject("Sketcher::SketchObject", "Sketch024")
sketch25.AttachmentSupport = (doc.getObject("XY_Plane004"), [""])
sketch25.MapMode = "FlatFace"
sketch25.AttachmentOffset = App.Placement(V(0, 0, 5.5), App.Rotation())
add_polygon(sketch25, [(-28.8, 42.9), (-28.8, 55.9), (-30.8, 55.9), (-30.8, 40.9), (30.8, 40.9), (30.8, 55.9), (28.8, 55.9), (28.8, 42.9)])
sketch25.addConstraint(Sketcher.Constraint("Vertical", 0))
sketch25.addConstraint(Sketcher.Constraint("Horizontal", 1))
sketch25.addConstraint(Sketcher.Constraint("Vertical", 2))
sketch25.addConstraint(Sketcher.Constraint("Horizontal", 3))
sketch25.addConstraint(Sketcher.Constraint("Vertical", 4))
sketch25.addConstraint(Sketcher.Constraint("Horizontal", 5))
sketch25.addConstraint(Sketcher.Constraint("Vertical", 6))
sketch25.addConstraint(Sketcher.Constraint("Horizontal", 7))
sketch25.addConstraint(Sketcher.Constraint("Symmetric", 1, 2, 4, 2, -2))
sketch25.addConstraint(Sketcher.Constraint("Equal", 1, 5))
sketch25.addConstraint(Sketcher.Constraint("DistanceX", 1, 2, 1, 1, Q("2 mm")))
sketch25.addConstraint(Sketcher.Constraint("DistanceY", 0, 1, 0, 2, Q("13 mm")))
sketch25.addConstraint(Sketcher.Constraint("DistanceY", 2, 2, 2, 1, Q("15 mm")))
sketch25.addConstraint(Sketcher.Constraint("DistanceX", 3, 1, 3, 2, Q("61.5 mm")))
sketch25.addConstraint(Sketcher.Constraint("DistanceY", -1, 1, 0, 2, Q("55.90864 mm")))
pad14 = body5.newObject("PartDesign::Pad", "Pad013")
pad14.Profile = sketch25
pad14.Length = 15

sketch26 = body5.newObject("Sketcher::SketchObject", "Sketch025")
sketch26.AttachmentSupport = (doc.getObject("XY_Plane004"), [""])
sketch26.MapMode = "FlatFace"
sketch26.AttachmentOffset = App.Placement(V(0, 0, 20.5), App.Rotation())
add_polygon(sketch26, [(-18.8, 42.9), (-18.8, 40.9), (18.8, 40.9), (18.8, 42.9)])
sketch26.addConstraint(Sketcher.Constraint("Vertical", 0))
sketch26.addConstraint(Sketcher.Constraint("Horizontal", 1))
sketch26.addConstraint(Sketcher.Constraint("Vertical", 2))
sketch26.addConstraint(Sketcher.Constraint("Horizontal", 3))
sketch26.addConstraint(Sketcher.Constraint("DistanceY", 0, 2, 0, 1, Q("2 mm")))
sketch26.addConstraint(Sketcher.Constraint("DistanceX", 1, 1, 1, 2, Q("37.5 mm")))
sketch26.addConstraint(Sketcher.Constraint("DistanceX", 0, 2, -1, 1, Q("18.75 mm")))
sketch26.addConstraint(Sketcher.Constraint("DistanceY", -1, 1, 0, 2, Q("40.90864 mm")))
pocket12 = body5.newObject("PartDesign::Pocket", "Pocket011")
pocket12.Profile = sketch26
pocket12.Length = 14.99

sketch27 = body5.newObject("Sketcher::SketchObject", "Sketch026")
sketch27.AttachmentSupport = (doc.getObject("XZ_Plane004"), [""])
sketch27.MapMode = "FlatFace"
sketch27.AttachmentOffset = App.Placement(V(0, 0, -40.90864), App.Rotation())
add_polygon(sketch27, [(-31, 16), (-31, 10), (-2, 10), (-2, 16)])
add_polygon(sketch27, [(2, 16), (2, 10), (31, 10), (31, 16)])
sketch27.addConstraint(Sketcher.Constraint("Vertical", 0))
sketch27.addConstraint(Sketcher.Constraint("Horizontal", 1))
sketch27.addConstraint(Sketcher.Constraint("Vertical", 2))
sketch27.addConstraint(Sketcher.Constraint("Horizontal", 3))
sketch27.addConstraint(Sketcher.Constraint("Vertical", 4))
sketch27.addConstraint(Sketcher.Constraint("Horizontal", 5))
sketch27.addConstraint(Sketcher.Constraint("Vertical", 6))
sketch27.addConstraint(Sketcher.Constraint("Horizontal", 7))
sketch27.addConstraint(Sketcher.Constraint("Symmetric", 1, 2, 4, 2, -2))
sketch27.addConstraint(Sketcher.Constraint("Symmetric", 3, 2, 6, 2, -2))
sketch27.addConstraint(Sketcher.Constraint("DistanceY", 0, 2, 0, 1, Q("5 mm")))
sketch27.addConstraint(Sketcher.Constraint("DistanceX", 1, 2, 4, 2, Q("5 mm")))
sketch27.addConstraint(Sketcher.Constraint("DistanceX", 1, 1, 1, 2, Q("28.25 mm")))
sketch27.addConstraint(Sketcher.Constraint("DistanceY", -1, 1, 0, 2, Q("10.5 mm")))
pad15 = body5.newObject("PartDesign::Pad", "Pad014")
pad15.Profile = sketch27
pad15.Length = 27.9

sketch28 = body5.newObject("Sketcher::SketchObject", "Sketch027")
sketch28.AttachmentSupport = (doc.getObject("XY_Plane004"), [""])
sketch28.MapMode = "FlatFace"
sketch28.AttachmentOffset = App.Placement(V(0, 0, 15.5), App.Rotation())
sketch28.addGeometry(Part.Circle(V(-20, 18, 0), V(0, 0, 1), 3), False)
sketch28.addGeometry(Part.Circle(V(20, 18, 0), V(0, 0, 1), 3), False)
add_polygon(sketch28, [(-21.8, 40.9), (-21.8, 24), (-2.5, 24), (-2.5, 40.9)])
add_polygon(sketch28, [(2.5, 40.9), (2.5, 24), (21.8, 24), (21.8, 40.9)])
sketch28.addGeometry(Part.LineSegment(V(-2.5, 21, 0), V(-10.5, 21, 0)), False)
sketch28.addGeometry(Part.ArcOfCircle(Part.Circle(V(-10.5, 18.5, 0), V(0, 0, 1), 2.5), math.radians(90), math.radians(270)), False)
sketch28.addGeometry(Part.LineSegment(V(-10.5, 16, 0), V(-2.5, 16, 0)), False)
sketch28.addGeometry(Part.LineSegment(V(-2.5, 16, 0), V(-2.5, 21, 0)), False)
sketch28.addGeometry(Part.LineSegment(V(10.5, 21, 0), V(2.5, 21, 0)), False)
sketch28.addGeometry(Part.LineSegment(V(2.5, 21, 0), V(2.5, 16, 0)), False)
sketch28.addGeometry(Part.LineSegment(V(2.5, 16, 0), V(10.5, 16, 0)), False)
sketch28.addGeometry(Part.ArcOfCircle(Part.Circle(V(10.5, 18.5, 0), V(0, 0, 1), 2.5), math.radians(-90), math.radians(90)), False)
sketch28.addConstraint(Sketcher.Constraint("Tangent", 10, 2, 11, 1))
sketch28.addConstraint(Sketcher.Constraint("Tangent", 11, 2, 12, 1))
sketch28.addConstraint(Sketcher.Constraint("Coincident", 12, 2, 13, 1))
sketch28.addConstraint(Sketcher.Constraint("Coincident", 13, 2, 10, 1))
sketch28.addConstraint(Sketcher.Constraint("Coincident", 14, 2, 15, 1))
sketch28.addConstraint(Sketcher.Constraint("Coincident", 15, 2, 16, 1))
sketch28.addConstraint(Sketcher.Constraint("Tangent", 16, 2, 17, 1))
sketch28.addConstraint(Sketcher.Constraint("Tangent", 17, 2, 14, 1))
sketch28.addConstraint(Sketcher.Constraint("Vertical", 2))
sketch28.addConstraint(Sketcher.Constraint("Horizontal", 3))
sketch28.addConstraint(Sketcher.Constraint("Vertical", 4))
sketch28.addConstraint(Sketcher.Constraint("Horizontal", 5))
sketch28.addConstraint(Sketcher.Constraint("Vertical", 6))
sketch28.addConstraint(Sketcher.Constraint("Horizontal", 7))
sketch28.addConstraint(Sketcher.Constraint("Vertical", 8))
sketch28.addConstraint(Sketcher.Constraint("Horizontal", 9))
sketch28.addConstraint(Sketcher.Constraint("Horizontal", 10))
sketch28.addConstraint(Sketcher.Constraint("Horizontal", 12))
sketch28.addConstraint(Sketcher.Constraint("Vertical", 13))
sketch28.addConstraint(Sketcher.Constraint("Horizontal", 14))
sketch28.addConstraint(Sketcher.Constraint("Vertical", 15))
sketch28.addConstraint(Sketcher.Constraint("Horizontal", 16))
sketch28.addConstraint(Sketcher.Constraint("Equal", 0, 1))
sketch28.addConstraint(Sketcher.Constraint("Equal", 11, 17))
sketch28.addConstraint(Sketcher.Constraint("Symmetric", 0, 3, 1, 3, -2))
sketch28.addConstraint(Sketcher.Constraint("Symmetric", 11, 3, 17, 3, -2))
sketch28.addConstraint(Sketcher.Constraint("Symmetric", 3, 2, 6, 2, -2))
sketch28.addConstraint(Sketcher.Constraint("Symmetric", 5, 2, 8, 2, -2))
sketch28.addConstraint(Sketcher.Constraint("Vertical", 4, 2, 12, 2))
sketch28.addConstraint(Sketcher.Constraint("Vertical", 9, 2, 14, 2))
sketch28.addConstraint(Sketcher.Constraint("Diameter", 0, Q("6 mm")))
sketch28.addConstraint(Sketcher.Constraint("Radius", 11, Q("2.5 mm")))
sketch28.addConstraint(Sketcher.Constraint("DistanceX", 10, 2, 10, 1, Q("8.000001 mm")))
sketch28.addConstraint(Sketcher.Constraint("DistanceY", 2, 2, 2, 1, Q("16.9 mm")))
sketch28.addConstraint(Sketcher.Constraint("DistanceX", 0, 3, -1, 1, Q("20 mm")))
sketch28.addConstraint(Sketcher.Constraint("DistanceY", -1, 1, 0, 3, Q("18 mm")))
sketch28.addConstraint(Sketcher.Constraint("DistanceX", 11, 3, 17, 3, Q("21.000001 mm")))
sketch28.addConstraint(Sketcher.Constraint("DistanceY", 10, 2, 3, 2, Q("3 mm")))
sketch28.addConstraint(Sketcher.Constraint("DistanceX", 3, 1, 3, 2, Q("19.25 mm")))
sketch28.addConstraint(Sketcher.Constraint("DistanceY", -1, 1, 11, 3, Q("18.50864 mm")))
pocket13 = body5.newObject("PartDesign::Pocket", "Pocket012")
pocket13.Profile = sketch28
pocket13.Type = "ThroughAll"

sketch29 = body5.newObject("Sketcher::SketchObject", "Sketch028")
sketch29.AttachmentSupport = (doc.getObject("XY_Plane004"), [""])
sketch29.MapMode = "FlatFace"
sketch29.AttachmentOffset = App.Placement(V(0, 0, 15.5), App.Rotation())
add_polygon(sketch29, [(-21.8, 29), (-30.8, 29), (-30.8, 13), (-28.6, 13), (-21.8, 26)])
add_polygon(sketch29, [(30.8, 29), (21.8, 29), (21.8, 26), (28.6, 13), (30.8, 13)])
sketch29.addConstraint(Sketcher.Constraint("Horizontal", 0))
sketch29.addConstraint(Sketcher.Constraint("Vertical", 1))
sketch29.addConstraint(Sketcher.Constraint("Horizontal", 2))
sketch29.addConstraint(Sketcher.Constraint("Vertical", 4))
sketch29.addConstraint(Sketcher.Constraint("Horizontal", 5))
sketch29.addConstraint(Sketcher.Constraint("Vertical", 6))
sketch29.addConstraint(Sketcher.Constraint("Horizontal", 8))
sketch29.addConstraint(Sketcher.Constraint("Vertical", 9))
sketch29.addConstraint(Sketcher.Constraint("Symmetric", 4, 2, 5, 2, -2))
sketch29.addConstraint(Sketcher.Constraint("Symmetric", 2, 2, 7, 2, -2))
sketch29.addConstraint(Sketcher.Constraint("Horizontal", 3, 2, 6, 2))
sketch29.addConstraint(Sketcher.Constraint("Equal", 0, 5))
sketch29.addConstraint(Sketcher.Constraint("DistanceX", 0, 2, 0, 1, Q("9 mm")))
sketch29.addConstraint(Sketcher.Constraint("DistanceY", 1, 2, 1, 1, Q("16 mm")))
sketch29.addConstraint(Sketcher.Constraint("DistanceY", 4, 1, 4, 2, Q("3 mm")))
sketch29.addConstraint(Sketcher.Constraint("DistanceX", 2, 1, 2, 2, Q("2.2 mm")))
sketch29.addConstraint(Sketcher.Constraint("DistanceX", 4, 2, 5, 2, Q("43.5 mm")))
sketch29.addConstraint(Sketcher.Constraint("DistanceY", -1, 1, 0, 2, Q("29.00864 mm")))
pad16 = body5.newObject("PartDesign::Pad", "Pad015")
pad16.Profile = sketch29
pad16.Length = 5

sketch30 = body5.newObject("Sketcher::SketchObject", "Sketch029")
sketch30.AttachmentSupport = (doc.getObject("XY_Plane004"), [""])
sketch30.MapMode = "FlatFace"
sketch30.AttachmentOffset = App.Placement(V(0, 0, 10.5), App.Rotation())
add_polygon(sketch30, [(-28.6, 13), (-30.8, 13), (-30.8, 29), (-21.8, 29), (-21.8, 26)])
add_polygon(sketch30, [(28.6, 13), (21.8, 26), (21.8, 29), (30.8, 29), (30.8, 13)])
sketch30.addConstraint(Sketcher.Constraint("Horizontal", 0))
sketch30.addConstraint(Sketcher.Constraint("Vertical", 1))
sketch30.addConstraint(Sketcher.Constraint("Horizontal", 2))
sketch30.addConstraint(Sketcher.Constraint("Vertical", 3))
sketch30.addConstraint(Sketcher.Constraint("Vertical", 6))
sketch30.addConstraint(Sketcher.Constraint("Horizontal", 7))
sketch30.addConstraint(Sketcher.Constraint("Vertical", 8))
sketch30.addConstraint(Sketcher.Constraint("Horizontal", 9))
sketch30.addConstraint(Sketcher.Constraint("Symmetric", 3, 2, 5, 2, -2))
sketch30.addConstraint(Sketcher.Constraint("Symmetric", 1, 2, 7, 2, -2))
sketch30.addConstraint(Sketcher.Constraint("Symmetric", 4, 2, 9, 2, -2))
sketch30.addConstraint(Sketcher.Constraint("DistanceX", 2, 1, 2, 2, Q("9 mm")))
sketch30.addConstraint(Sketcher.Constraint("DistanceY", 1, 1, 1, 2, Q("16 mm")))
sketch30.addConstraint(Sketcher.Constraint("DistanceY", 3, 2, 3, 1, Q("3 mm")))
sketch30.addConstraint(Sketcher.Constraint("DistanceX", 0, 2, 0, 1, Q("2.2 mm")))
sketch30.addConstraint(Sketcher.Constraint("DistanceX", 3, 2, 5, 2, Q("43.5 mm")))
sketch30.addConstraint(Sketcher.Constraint("DistanceY", -1, 1, 0, 2, Q("13.00864 mm")))
pad17 = body5.newObject("PartDesign::Pad", "Pad016")
pad17.Profile = sketch30
pad17.Length = 5
pad17.Reversed = True

sketch31 = body5.newObject("Sketcher::SketchObject", "Sketch030")
sketch31.AttachmentSupport = (doc.getObject("XY_Plane004"), [""])
sketch31.MapMode = "FlatFace"
sketch31.AttachmentOffset = App.Placement(V(0, 0, 15.5), App.Rotation())
add_polygon(sketch31, [(-10, 24), (-5, 21), (-5, 13), (5, 13), (5, 21), (10, 24)])
sketch31.addConstraint(Sketcher.Constraint("Vertical", 1))
sketch31.addConstraint(Sketcher.Constraint("Horizontal", 2))
sketch31.addConstraint(Sketcher.Constraint("Vertical", 3))
sketch31.addConstraint(Sketcher.Constraint("Horizontal", 5))
sketch31.addConstraint(Sketcher.Constraint("Symmetric", 0, 2, 3, 2, -2))
sketch31.addConstraint(Sketcher.Constraint("Equal", 0, 4))
sketch31.addConstraint(Sketcher.Constraint("DistanceX", 2, 1, 2, 2, Q("10 mm")))
sketch31.addConstraint(Sketcher.Constraint("DistanceX", 5, 2, 5, 1, Q("20 mm")))
sketch31.addConstraint(Sketcher.Constraint("DistanceY", 1, 2, 1, 1, Q("8 mm")))
sketch31.addConstraint(Sketcher.Constraint("DistanceY", 3, 2, 4, 2, Q("3 mm")))
sketch31.addConstraint(Sketcher.Constraint("DistanceY", -1, 1, 0, 2, Q("21.00864 mm")))
pocket14 = body5.newObject("PartDesign::Pocket", "Pocket013")
pocket14.Profile = sketch31
pocket14.Type = "ThroughAll"
doc.recompute()

fillet3 = body5.newObject("PartDesign::Fillet", "Fillet002")
fillet3.Base = (pocket14, edges_at(pocket14, [(5, 21.009, 13), (-5, 21.009, 13)]))
fillet3.Radius = 1

sketch32 = body5.newObject("Sketcher::SketchObject", "Sketch031")
sketch32.AttachmentSupport = (doc.getObject("YZ_Plane004"), [""])
sketch32.MapMode = "FlatFace"
sketch32.AttachmentOffset = App.Placement(V(0, 0, -28.75), App.Rotation())
add_polygon(sketch32, [(43, 20), (43, 6), (56, 6), (56, 20)])
sketch32.addConstraint(Sketcher.Constraint("Vertical", 0))
sketch32.addConstraint(Sketcher.Constraint("Horizontal", 1))
sketch32.addConstraint(Sketcher.Constraint("Vertical", 2))
sketch32.addConstraint(Sketcher.Constraint("Horizontal", 3))
sketch32.addConstraint(Sketcher.Constraint("DistanceX", 1, 1, 1, 2, Q("13 mm")))
sketch32.addConstraint(Sketcher.Constraint("DistanceY", 0, 2, 0, 1, Q("15 mm")))
sketch32.addConstraint(Sketcher.Constraint("DistanceY", -1, 1, 0, 2, Q("5.5 mm")))
sketch32.addConstraint(Sketcher.Constraint("DistanceX", -1, 1, 0, 2, Q("42.90864 mm")))
pad18 = body5.newObject("PartDesign::Pad", "Pad017")
pad18.Profile = sketch32
pad18.Length = 0.5

sketch33 = body5.newObject("Sketcher::SketchObject", "Sketch032")
sketch33.AttachmentSupport = (doc.getObject("YZ_Plane004"), [""])
sketch33.MapMode = "FlatFace"
sketch33.AttachmentOffset = App.Placement(V(0, 0, 28.75), App.Rotation())
add_polygon(sketch33, [(56, 20), (56, 6), (43, 6), (43, 20)])
sketch33.addConstraint(Sketcher.Constraint("Vertical", 0))
sketch33.addConstraint(Sketcher.Constraint("Horizontal", 1))
sketch33.addConstraint(Sketcher.Constraint("Vertical", 2))
sketch33.addConstraint(Sketcher.Constraint("Horizontal", 3))
sketch33.addConstraint(Sketcher.Constraint("DistanceX", 1, 2, 1, 1, Q("13 mm")))
sketch33.addConstraint(Sketcher.Constraint("DistanceY", 0, 2, 0, 1, Q("15 mm")))
sketch33.addConstraint(Sketcher.Constraint("DistanceY", -1, 1, 0, 2, Q("5.5 mm")))
sketch33.addConstraint(Sketcher.Constraint("DistanceX", -1, 1, 0, 2, Q("55.90864 mm")))
pad19 = body5.newObject("PartDesign::Pad", "Pad018")
pad19.Profile = sketch33
pad19.Length = 0.5
pad19.Reversed = True

doc.recompute()
